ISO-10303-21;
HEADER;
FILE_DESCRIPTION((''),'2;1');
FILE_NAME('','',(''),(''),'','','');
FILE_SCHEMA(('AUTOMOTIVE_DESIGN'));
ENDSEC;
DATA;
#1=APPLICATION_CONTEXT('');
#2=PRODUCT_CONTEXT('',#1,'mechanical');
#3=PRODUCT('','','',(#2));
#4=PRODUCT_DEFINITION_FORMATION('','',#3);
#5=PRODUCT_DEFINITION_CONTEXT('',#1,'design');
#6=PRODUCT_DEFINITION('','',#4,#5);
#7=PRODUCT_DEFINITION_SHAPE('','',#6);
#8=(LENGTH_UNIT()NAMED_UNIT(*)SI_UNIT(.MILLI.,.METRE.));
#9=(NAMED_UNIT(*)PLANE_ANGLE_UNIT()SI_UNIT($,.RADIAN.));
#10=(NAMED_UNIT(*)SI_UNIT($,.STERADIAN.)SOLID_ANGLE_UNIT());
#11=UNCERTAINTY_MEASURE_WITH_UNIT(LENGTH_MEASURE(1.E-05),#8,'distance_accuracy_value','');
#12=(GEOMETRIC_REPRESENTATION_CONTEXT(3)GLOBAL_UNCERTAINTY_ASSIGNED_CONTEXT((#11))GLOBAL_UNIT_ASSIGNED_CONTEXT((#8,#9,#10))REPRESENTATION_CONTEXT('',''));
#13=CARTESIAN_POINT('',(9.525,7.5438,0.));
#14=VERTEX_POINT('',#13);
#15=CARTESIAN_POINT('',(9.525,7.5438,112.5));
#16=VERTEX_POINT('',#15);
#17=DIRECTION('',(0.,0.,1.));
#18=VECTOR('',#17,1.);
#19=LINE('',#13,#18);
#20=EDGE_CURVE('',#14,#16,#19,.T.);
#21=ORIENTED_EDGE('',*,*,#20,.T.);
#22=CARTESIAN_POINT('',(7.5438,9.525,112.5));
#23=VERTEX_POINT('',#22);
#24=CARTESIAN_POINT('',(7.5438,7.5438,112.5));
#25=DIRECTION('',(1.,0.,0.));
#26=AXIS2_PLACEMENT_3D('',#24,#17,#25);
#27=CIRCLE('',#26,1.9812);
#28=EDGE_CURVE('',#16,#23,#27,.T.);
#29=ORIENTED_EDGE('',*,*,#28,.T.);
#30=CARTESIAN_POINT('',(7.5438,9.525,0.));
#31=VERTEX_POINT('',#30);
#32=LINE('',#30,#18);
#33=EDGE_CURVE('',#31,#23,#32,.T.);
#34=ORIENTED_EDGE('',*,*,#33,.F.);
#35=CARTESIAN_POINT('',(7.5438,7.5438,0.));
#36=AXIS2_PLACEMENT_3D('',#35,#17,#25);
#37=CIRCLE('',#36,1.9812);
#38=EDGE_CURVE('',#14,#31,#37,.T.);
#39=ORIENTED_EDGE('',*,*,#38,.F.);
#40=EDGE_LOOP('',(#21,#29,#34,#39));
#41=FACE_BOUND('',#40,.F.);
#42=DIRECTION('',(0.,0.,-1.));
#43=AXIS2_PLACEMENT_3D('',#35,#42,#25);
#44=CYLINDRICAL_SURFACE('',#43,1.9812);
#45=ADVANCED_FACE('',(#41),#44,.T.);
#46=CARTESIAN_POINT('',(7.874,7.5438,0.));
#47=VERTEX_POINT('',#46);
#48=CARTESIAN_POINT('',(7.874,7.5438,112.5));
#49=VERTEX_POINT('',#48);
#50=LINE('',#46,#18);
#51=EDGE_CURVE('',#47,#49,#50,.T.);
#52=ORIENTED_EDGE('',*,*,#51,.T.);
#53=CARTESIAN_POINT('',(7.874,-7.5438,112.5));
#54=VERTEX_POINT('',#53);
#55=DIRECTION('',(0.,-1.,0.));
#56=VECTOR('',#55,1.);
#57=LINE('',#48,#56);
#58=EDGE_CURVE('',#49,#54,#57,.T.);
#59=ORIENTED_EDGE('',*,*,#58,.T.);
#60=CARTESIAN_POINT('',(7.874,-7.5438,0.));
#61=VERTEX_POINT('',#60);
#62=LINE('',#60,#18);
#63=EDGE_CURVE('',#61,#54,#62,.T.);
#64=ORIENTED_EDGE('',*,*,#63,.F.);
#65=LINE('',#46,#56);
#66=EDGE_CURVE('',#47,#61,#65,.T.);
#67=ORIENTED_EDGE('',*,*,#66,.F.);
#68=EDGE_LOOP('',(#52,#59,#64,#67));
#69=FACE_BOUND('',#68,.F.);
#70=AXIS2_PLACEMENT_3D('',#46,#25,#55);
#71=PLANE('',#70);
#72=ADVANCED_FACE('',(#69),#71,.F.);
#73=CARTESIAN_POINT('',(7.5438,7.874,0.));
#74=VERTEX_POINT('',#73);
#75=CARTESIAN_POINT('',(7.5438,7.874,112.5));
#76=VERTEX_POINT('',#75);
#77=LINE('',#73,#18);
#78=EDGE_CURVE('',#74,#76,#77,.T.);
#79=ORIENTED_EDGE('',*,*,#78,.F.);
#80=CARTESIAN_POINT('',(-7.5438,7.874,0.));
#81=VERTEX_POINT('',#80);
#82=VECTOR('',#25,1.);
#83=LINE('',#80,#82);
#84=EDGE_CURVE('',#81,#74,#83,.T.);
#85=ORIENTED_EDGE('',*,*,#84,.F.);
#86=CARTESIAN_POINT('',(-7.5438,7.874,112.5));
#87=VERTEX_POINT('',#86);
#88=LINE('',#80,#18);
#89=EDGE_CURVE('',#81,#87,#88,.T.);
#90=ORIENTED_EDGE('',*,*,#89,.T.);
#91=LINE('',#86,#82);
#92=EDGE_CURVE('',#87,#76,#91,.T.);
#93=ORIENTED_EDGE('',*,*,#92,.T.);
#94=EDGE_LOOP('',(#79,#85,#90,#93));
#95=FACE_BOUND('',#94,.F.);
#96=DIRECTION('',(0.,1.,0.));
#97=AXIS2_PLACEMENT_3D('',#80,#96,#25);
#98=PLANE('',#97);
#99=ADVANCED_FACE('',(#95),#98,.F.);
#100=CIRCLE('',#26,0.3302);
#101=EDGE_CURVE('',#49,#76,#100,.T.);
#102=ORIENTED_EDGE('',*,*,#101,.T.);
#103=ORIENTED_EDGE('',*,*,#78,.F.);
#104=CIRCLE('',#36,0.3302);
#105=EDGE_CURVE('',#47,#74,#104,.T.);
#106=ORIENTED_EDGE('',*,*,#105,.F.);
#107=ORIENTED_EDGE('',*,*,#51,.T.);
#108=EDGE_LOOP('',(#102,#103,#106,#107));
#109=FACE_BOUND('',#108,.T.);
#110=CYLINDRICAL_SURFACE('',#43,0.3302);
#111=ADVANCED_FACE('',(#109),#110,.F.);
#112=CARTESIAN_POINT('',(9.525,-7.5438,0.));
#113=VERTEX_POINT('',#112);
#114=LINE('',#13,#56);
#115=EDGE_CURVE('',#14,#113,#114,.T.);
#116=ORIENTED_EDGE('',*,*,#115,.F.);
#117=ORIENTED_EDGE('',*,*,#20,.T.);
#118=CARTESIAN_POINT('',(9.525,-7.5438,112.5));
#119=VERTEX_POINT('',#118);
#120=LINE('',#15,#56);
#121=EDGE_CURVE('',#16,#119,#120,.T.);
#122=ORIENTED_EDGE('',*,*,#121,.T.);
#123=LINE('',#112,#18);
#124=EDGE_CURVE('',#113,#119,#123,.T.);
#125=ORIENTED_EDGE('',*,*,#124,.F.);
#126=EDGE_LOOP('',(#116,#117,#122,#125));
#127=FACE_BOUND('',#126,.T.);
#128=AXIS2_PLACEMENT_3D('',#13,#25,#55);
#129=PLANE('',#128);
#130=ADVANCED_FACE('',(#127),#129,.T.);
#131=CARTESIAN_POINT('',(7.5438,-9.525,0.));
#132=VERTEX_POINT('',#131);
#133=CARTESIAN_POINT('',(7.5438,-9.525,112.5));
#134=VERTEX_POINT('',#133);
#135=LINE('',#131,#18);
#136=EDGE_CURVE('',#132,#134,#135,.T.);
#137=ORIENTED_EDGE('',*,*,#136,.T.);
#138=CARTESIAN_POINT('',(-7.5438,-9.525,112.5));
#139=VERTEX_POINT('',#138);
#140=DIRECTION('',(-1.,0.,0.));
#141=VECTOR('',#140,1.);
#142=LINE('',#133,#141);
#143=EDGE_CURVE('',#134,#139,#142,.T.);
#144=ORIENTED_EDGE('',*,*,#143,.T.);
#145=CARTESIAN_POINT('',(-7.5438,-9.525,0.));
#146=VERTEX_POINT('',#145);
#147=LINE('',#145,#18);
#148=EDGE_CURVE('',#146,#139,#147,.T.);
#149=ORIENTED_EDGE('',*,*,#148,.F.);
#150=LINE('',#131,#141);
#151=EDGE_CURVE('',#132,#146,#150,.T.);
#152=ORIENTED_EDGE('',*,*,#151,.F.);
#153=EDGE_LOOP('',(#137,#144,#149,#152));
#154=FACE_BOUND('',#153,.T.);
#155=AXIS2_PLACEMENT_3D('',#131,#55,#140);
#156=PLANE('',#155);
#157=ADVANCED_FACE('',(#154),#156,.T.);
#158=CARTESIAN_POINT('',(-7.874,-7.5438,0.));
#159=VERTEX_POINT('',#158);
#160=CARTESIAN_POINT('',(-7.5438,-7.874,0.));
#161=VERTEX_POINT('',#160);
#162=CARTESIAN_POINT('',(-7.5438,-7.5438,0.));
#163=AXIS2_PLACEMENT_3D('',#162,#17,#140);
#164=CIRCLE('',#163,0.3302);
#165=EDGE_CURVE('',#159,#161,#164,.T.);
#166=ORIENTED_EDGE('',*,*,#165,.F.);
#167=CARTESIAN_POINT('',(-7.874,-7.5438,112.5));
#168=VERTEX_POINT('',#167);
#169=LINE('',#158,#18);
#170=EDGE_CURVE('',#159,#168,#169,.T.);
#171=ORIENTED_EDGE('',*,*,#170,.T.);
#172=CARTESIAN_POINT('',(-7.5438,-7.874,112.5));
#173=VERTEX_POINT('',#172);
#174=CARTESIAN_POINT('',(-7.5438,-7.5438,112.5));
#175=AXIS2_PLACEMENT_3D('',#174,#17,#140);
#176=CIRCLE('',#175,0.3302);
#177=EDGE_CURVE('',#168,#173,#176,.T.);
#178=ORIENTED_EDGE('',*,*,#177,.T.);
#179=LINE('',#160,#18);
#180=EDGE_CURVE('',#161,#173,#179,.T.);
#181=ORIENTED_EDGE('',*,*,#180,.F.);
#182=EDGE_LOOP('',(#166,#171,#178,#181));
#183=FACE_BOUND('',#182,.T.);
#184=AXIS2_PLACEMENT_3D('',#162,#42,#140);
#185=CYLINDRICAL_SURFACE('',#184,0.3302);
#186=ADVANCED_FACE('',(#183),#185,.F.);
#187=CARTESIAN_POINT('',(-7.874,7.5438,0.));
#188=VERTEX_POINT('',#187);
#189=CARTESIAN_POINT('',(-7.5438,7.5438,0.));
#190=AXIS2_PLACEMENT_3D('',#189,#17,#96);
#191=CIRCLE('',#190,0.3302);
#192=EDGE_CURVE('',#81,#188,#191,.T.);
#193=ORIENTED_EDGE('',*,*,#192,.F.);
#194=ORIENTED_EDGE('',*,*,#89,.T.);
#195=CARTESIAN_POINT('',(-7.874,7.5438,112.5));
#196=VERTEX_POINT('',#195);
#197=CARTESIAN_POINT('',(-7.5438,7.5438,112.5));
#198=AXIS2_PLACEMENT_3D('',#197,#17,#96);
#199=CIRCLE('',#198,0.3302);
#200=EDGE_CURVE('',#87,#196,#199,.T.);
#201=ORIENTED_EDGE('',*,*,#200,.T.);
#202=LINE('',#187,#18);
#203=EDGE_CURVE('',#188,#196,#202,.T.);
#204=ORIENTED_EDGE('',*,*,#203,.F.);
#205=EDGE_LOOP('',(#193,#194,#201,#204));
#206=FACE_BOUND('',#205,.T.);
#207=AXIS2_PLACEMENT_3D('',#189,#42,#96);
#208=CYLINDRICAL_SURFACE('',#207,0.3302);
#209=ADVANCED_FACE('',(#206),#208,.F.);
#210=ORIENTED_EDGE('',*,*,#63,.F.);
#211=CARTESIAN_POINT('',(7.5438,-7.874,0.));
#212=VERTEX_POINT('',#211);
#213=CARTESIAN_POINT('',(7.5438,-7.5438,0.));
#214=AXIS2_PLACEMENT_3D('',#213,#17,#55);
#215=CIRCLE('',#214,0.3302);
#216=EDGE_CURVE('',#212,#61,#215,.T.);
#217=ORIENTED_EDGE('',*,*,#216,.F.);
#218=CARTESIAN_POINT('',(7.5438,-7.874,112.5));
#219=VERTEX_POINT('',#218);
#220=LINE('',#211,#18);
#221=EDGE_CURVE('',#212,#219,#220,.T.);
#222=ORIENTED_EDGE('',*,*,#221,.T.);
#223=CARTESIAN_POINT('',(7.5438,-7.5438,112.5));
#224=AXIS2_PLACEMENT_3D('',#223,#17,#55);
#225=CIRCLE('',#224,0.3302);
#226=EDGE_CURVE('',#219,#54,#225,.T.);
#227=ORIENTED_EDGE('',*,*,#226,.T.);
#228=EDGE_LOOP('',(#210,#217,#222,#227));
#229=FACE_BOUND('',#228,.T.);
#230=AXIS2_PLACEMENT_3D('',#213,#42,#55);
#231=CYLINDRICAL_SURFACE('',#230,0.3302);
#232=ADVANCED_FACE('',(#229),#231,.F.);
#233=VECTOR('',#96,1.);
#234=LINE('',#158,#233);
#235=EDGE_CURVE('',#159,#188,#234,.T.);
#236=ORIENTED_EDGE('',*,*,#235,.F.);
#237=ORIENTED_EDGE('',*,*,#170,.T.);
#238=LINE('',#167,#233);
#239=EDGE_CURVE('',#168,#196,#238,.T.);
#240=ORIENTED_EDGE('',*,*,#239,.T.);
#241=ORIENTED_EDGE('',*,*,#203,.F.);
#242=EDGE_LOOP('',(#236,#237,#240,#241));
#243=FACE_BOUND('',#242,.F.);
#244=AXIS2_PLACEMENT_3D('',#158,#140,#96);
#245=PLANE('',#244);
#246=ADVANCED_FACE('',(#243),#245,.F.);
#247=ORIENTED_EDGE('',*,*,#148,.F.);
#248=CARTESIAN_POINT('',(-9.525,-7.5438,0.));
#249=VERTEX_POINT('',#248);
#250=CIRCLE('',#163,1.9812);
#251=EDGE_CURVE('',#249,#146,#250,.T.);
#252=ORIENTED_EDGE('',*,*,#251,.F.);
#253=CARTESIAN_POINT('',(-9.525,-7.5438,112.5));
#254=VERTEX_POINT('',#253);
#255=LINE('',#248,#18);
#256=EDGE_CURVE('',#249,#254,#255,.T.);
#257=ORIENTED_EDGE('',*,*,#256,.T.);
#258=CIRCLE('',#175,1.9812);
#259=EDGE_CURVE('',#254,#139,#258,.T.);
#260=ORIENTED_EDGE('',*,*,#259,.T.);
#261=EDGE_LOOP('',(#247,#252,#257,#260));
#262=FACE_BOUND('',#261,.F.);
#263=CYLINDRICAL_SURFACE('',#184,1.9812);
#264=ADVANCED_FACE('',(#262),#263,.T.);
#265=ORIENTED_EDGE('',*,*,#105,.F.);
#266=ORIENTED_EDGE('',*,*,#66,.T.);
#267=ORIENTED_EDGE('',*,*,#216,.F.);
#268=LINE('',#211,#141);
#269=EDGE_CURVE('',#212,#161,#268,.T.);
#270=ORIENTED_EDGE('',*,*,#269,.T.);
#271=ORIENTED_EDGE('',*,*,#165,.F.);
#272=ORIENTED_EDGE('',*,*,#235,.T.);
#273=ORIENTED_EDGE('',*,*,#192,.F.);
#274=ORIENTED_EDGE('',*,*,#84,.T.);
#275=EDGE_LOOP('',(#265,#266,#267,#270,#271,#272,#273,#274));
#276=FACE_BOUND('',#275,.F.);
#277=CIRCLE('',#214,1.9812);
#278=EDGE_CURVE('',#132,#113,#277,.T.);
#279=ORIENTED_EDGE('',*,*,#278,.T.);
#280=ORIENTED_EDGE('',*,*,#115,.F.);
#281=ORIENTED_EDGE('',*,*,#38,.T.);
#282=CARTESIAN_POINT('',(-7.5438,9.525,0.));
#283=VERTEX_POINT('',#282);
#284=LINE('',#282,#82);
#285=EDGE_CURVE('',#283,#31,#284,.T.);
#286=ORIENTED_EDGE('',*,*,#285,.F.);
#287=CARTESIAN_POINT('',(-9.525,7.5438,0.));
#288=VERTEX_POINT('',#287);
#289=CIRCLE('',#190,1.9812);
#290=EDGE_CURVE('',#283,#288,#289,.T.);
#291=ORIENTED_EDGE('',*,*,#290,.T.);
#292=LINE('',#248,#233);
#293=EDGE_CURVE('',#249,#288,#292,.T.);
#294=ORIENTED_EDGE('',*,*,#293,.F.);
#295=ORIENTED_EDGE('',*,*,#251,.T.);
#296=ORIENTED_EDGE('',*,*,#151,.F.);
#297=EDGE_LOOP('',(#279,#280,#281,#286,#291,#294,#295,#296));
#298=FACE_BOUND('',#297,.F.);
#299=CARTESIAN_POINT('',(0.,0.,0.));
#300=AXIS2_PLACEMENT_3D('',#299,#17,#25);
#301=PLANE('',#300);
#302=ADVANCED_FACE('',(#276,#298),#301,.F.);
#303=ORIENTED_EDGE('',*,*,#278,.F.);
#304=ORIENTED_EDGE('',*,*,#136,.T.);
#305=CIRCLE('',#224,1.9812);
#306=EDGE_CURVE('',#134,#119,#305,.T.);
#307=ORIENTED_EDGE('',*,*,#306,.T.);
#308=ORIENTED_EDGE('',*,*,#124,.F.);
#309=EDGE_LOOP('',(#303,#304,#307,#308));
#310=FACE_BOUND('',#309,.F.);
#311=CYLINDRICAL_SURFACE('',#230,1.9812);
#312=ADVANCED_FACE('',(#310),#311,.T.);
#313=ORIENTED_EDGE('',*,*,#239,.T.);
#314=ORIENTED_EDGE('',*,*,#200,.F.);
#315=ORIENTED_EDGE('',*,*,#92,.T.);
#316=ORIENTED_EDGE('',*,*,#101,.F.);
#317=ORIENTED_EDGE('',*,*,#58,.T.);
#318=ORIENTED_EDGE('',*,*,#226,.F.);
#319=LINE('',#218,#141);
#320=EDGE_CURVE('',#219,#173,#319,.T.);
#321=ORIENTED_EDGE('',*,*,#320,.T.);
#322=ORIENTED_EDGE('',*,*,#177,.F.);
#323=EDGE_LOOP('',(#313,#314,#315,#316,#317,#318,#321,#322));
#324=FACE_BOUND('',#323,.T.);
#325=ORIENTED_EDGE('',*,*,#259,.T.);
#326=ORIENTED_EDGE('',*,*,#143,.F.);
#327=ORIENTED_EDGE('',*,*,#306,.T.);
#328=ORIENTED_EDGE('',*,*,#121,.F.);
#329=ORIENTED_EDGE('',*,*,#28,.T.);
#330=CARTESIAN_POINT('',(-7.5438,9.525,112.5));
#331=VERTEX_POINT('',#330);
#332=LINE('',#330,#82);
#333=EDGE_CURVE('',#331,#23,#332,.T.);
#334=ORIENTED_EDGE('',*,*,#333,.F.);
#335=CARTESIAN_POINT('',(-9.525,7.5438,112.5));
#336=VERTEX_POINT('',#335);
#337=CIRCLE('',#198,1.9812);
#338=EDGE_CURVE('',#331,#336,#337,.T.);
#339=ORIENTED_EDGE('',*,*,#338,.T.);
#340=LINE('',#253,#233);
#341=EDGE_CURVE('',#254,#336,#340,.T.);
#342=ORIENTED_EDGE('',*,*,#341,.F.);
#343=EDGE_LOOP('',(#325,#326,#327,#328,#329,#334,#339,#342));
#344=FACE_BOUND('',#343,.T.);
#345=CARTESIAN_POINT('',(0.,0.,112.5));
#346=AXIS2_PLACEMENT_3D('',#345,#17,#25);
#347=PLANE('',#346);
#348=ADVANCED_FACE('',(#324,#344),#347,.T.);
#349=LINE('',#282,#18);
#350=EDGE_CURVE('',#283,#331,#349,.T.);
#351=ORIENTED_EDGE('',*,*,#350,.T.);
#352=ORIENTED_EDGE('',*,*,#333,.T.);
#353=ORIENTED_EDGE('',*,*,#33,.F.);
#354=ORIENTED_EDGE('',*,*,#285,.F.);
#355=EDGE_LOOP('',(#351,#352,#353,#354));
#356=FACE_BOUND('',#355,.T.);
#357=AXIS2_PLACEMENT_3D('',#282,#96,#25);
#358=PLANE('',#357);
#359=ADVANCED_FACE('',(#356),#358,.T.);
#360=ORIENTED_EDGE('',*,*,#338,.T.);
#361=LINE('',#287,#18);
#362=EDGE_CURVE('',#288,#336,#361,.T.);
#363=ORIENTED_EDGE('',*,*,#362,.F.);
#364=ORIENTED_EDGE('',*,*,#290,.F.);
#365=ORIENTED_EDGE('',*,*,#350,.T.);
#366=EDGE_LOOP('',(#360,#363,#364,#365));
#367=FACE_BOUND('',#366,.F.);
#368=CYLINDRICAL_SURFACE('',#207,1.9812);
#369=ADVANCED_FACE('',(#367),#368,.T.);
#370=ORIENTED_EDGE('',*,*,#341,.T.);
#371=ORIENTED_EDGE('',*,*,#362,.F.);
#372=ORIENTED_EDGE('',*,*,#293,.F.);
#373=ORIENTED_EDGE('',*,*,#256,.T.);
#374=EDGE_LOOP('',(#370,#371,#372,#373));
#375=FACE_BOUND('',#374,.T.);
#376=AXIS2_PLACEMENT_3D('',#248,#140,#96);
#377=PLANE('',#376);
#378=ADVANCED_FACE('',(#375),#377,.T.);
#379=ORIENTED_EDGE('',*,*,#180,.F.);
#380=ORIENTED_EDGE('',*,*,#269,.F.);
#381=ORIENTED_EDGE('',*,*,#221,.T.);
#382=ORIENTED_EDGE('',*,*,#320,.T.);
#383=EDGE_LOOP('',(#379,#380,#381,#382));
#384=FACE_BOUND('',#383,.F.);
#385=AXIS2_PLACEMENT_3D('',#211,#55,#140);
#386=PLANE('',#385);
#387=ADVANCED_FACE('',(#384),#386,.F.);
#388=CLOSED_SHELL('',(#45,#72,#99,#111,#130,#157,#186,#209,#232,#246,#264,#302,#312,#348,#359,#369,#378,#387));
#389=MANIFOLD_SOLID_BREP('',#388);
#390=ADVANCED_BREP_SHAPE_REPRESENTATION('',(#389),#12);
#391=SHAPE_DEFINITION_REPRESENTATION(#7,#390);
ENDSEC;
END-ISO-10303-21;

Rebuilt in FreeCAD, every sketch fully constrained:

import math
import FreeCAD as App
import Part
import Sketcher

V = App.Vector
Q = App.Units.Quantity

doc = App.newDocument("Part")
body = doc.addObject("PartDesign::Body", "Body")

# Sketch on XY plane
sketch1 = body.newObject("Sketcher::SketchObject", "Sketch")
sketch1.AttachmentSupport = (doc.getObject("XY_Plane"), [""])
sketch1.MapMode = "FlatFace"
sketch1.addGeometry([
    Part.LineSegment(V(-9.53, 7.54, 0), V(-9.53, -7.54, 0)),  # 0
    Part.ArcOfCircle(Part.Circle(V(-7.54, -7.54, 0), V(0, 0, 1), 1.98), math.radians(180), math.radians(270)),  # 1
    Part.LineSegment(V(-7.54, -9.53, 0), V(7.54, -9.53, 0)),  # 2
    Part.ArcOfCircle(Part.Circle(V(7.54, -7.54, 0), V(0, 0, 1), 1.98), math.radians(-90), math.radians(0)),  # 3
    Part.LineSegment(V(9.53, -7.54, 0), V(9.53, 7.54, 0)),  # 4
    Part.ArcOfCircle(Part.Circle(V(7.54, 7.54, 0), V(0, 0, 1), 1.98), math.radians(0), math.radians(90)),  # 5
    Part.LineSegment(V(7.54, 9.53, 0), V(-7.54, 9.53, 0)),  # 6
    Part.ArcOfCircle(Part.Circle(V(-7.54, 7.54, 0), V(0, 0, 1), 1.98), math.radians(90), math.radians(180)),  # 7
    Part.ArcOfCircle(Part.Circle(V(-7.54, 7.54, 0), V(0, 0, 1), 0.33), math.radians(90), math.radians(180)),  # 8
    Part.LineSegment(V(-7.54, 7.87, 0), V(7.54, 7.87, 0)),  # 9
    Part.ArcOfCircle(Part.Circle(V(7.54, 7.54, 0), V(0, 0, 1), 0.33), math.radians(0), math.radians(90)),  # 10
    Part.LineSegment(V(7.87, 7.54, 0), V(7.87, -7.54, 0)),  # 11
    Part.ArcOfCircle(Part.Circle(V(7.54, -7.54, 0), V(0, 0, 1), 0.33), math.radians(-90), math.radians(0)),  # 12
    Part.LineSegment(V(7.54, -7.87, 0), V(-7.54, -7.87, 0)),  # 13
    Part.ArcOfCircle(Part.Circle(V(-7.54, -7.54, 0), V(0, 0, 1), 0.33), math.radians(180), math.radians(270)),  # 14
    Part.LineSegment(V(-7.87, -7.54, 0), V(-7.87, 7.54, 0)),  # 15
], False)
sketch1.addConstraint([
    Sketcher.Constraint("Tangent", 0, 2, 1, 1),
    Sketcher.Constraint("Tangent", 1, 2, 2, 1),
    Sketcher.Constraint("Tangent", 2, 2, 3, 1),
    Sketcher.Constraint("Tangent", 3, 2, 4, 1),
    Sketcher.Constraint("Tangent", 4, 2, 5, 1),
    Sketcher.Constraint("Tangent", 5, 2, 6, 1),
    Sketcher.Constraint("Tangent", 6, 2, 7, 1),
    Sketcher.Constraint("Tangent", 7, 2, 0, 1),
    Sketcher.Constraint("Tangent", 8, 1, 9, 1),
    Sketcher.Constraint("Tangent", 9, 2, 10, 2),
    Sketcher.Constraint("Tangent", 10, 1, 11, 1),
    Sketcher.Constraint("Tangent", 11, 2, 12, 2),
    Sketcher.Constraint("Tangent", 12, 1, 13, 1),
    Sketcher.Constraint("Tangent", 13, 2, 14, 2),
    Sketcher.Constraint("Tangent", 14, 1, 15, 1),
    Sketcher.Constraint("Tangent", 15, 2, 8, 2),
    Sketcher.Constraint("Vertical", 0),
    Sketcher.Constraint("Horizontal", 2),
    Sketcher.Constraint("Vertical", 4),
    Sketcher.Constraint("Horizontal", 6),
    Sketcher.Constraint("Horizontal", 9),
    Sketcher.Constraint("Vertical", 11),
    Sketcher.Constraint("Horizontal", 13),
    Sketcher.Constraint("Vertical", 15),
    Sketcher.Constraint("Coincident", 8, 3, 7, 3),
    Sketcher.Constraint("Coincident", 10, 3, 5, 3),
    Sketcher.Constraint("Coincident", 12, 3, 3, 3),
    Sketcher.Constraint("Equal", 1, 3),
    Sketcher.Constraint("Equal", 3, 5),
    Sketcher.Constraint("Equal", 5, 7),
    Sketcher.Constraint("Equal", 12, 14),
    Sketcher.Constraint("Symmetric", 1, 3, 5, 3, -1, 1),
    Sketcher.Constraint("Equal", 13, 0),
    Sketcher.Constraint("Radius", 1, Q("0.078 in")),
    Sketcher.Constraint("DistanceX", 0, 2, -1, 1, Q("0.375 in")),
    Sketcher.Constraint("Radius", 8, Q("0.013 in")),
])
pad1 = body.newObject("PartDesign::Pad", "Pad")
pad1.Profile = sketch1
pad1.Length = 112.5

doc.recompute()
